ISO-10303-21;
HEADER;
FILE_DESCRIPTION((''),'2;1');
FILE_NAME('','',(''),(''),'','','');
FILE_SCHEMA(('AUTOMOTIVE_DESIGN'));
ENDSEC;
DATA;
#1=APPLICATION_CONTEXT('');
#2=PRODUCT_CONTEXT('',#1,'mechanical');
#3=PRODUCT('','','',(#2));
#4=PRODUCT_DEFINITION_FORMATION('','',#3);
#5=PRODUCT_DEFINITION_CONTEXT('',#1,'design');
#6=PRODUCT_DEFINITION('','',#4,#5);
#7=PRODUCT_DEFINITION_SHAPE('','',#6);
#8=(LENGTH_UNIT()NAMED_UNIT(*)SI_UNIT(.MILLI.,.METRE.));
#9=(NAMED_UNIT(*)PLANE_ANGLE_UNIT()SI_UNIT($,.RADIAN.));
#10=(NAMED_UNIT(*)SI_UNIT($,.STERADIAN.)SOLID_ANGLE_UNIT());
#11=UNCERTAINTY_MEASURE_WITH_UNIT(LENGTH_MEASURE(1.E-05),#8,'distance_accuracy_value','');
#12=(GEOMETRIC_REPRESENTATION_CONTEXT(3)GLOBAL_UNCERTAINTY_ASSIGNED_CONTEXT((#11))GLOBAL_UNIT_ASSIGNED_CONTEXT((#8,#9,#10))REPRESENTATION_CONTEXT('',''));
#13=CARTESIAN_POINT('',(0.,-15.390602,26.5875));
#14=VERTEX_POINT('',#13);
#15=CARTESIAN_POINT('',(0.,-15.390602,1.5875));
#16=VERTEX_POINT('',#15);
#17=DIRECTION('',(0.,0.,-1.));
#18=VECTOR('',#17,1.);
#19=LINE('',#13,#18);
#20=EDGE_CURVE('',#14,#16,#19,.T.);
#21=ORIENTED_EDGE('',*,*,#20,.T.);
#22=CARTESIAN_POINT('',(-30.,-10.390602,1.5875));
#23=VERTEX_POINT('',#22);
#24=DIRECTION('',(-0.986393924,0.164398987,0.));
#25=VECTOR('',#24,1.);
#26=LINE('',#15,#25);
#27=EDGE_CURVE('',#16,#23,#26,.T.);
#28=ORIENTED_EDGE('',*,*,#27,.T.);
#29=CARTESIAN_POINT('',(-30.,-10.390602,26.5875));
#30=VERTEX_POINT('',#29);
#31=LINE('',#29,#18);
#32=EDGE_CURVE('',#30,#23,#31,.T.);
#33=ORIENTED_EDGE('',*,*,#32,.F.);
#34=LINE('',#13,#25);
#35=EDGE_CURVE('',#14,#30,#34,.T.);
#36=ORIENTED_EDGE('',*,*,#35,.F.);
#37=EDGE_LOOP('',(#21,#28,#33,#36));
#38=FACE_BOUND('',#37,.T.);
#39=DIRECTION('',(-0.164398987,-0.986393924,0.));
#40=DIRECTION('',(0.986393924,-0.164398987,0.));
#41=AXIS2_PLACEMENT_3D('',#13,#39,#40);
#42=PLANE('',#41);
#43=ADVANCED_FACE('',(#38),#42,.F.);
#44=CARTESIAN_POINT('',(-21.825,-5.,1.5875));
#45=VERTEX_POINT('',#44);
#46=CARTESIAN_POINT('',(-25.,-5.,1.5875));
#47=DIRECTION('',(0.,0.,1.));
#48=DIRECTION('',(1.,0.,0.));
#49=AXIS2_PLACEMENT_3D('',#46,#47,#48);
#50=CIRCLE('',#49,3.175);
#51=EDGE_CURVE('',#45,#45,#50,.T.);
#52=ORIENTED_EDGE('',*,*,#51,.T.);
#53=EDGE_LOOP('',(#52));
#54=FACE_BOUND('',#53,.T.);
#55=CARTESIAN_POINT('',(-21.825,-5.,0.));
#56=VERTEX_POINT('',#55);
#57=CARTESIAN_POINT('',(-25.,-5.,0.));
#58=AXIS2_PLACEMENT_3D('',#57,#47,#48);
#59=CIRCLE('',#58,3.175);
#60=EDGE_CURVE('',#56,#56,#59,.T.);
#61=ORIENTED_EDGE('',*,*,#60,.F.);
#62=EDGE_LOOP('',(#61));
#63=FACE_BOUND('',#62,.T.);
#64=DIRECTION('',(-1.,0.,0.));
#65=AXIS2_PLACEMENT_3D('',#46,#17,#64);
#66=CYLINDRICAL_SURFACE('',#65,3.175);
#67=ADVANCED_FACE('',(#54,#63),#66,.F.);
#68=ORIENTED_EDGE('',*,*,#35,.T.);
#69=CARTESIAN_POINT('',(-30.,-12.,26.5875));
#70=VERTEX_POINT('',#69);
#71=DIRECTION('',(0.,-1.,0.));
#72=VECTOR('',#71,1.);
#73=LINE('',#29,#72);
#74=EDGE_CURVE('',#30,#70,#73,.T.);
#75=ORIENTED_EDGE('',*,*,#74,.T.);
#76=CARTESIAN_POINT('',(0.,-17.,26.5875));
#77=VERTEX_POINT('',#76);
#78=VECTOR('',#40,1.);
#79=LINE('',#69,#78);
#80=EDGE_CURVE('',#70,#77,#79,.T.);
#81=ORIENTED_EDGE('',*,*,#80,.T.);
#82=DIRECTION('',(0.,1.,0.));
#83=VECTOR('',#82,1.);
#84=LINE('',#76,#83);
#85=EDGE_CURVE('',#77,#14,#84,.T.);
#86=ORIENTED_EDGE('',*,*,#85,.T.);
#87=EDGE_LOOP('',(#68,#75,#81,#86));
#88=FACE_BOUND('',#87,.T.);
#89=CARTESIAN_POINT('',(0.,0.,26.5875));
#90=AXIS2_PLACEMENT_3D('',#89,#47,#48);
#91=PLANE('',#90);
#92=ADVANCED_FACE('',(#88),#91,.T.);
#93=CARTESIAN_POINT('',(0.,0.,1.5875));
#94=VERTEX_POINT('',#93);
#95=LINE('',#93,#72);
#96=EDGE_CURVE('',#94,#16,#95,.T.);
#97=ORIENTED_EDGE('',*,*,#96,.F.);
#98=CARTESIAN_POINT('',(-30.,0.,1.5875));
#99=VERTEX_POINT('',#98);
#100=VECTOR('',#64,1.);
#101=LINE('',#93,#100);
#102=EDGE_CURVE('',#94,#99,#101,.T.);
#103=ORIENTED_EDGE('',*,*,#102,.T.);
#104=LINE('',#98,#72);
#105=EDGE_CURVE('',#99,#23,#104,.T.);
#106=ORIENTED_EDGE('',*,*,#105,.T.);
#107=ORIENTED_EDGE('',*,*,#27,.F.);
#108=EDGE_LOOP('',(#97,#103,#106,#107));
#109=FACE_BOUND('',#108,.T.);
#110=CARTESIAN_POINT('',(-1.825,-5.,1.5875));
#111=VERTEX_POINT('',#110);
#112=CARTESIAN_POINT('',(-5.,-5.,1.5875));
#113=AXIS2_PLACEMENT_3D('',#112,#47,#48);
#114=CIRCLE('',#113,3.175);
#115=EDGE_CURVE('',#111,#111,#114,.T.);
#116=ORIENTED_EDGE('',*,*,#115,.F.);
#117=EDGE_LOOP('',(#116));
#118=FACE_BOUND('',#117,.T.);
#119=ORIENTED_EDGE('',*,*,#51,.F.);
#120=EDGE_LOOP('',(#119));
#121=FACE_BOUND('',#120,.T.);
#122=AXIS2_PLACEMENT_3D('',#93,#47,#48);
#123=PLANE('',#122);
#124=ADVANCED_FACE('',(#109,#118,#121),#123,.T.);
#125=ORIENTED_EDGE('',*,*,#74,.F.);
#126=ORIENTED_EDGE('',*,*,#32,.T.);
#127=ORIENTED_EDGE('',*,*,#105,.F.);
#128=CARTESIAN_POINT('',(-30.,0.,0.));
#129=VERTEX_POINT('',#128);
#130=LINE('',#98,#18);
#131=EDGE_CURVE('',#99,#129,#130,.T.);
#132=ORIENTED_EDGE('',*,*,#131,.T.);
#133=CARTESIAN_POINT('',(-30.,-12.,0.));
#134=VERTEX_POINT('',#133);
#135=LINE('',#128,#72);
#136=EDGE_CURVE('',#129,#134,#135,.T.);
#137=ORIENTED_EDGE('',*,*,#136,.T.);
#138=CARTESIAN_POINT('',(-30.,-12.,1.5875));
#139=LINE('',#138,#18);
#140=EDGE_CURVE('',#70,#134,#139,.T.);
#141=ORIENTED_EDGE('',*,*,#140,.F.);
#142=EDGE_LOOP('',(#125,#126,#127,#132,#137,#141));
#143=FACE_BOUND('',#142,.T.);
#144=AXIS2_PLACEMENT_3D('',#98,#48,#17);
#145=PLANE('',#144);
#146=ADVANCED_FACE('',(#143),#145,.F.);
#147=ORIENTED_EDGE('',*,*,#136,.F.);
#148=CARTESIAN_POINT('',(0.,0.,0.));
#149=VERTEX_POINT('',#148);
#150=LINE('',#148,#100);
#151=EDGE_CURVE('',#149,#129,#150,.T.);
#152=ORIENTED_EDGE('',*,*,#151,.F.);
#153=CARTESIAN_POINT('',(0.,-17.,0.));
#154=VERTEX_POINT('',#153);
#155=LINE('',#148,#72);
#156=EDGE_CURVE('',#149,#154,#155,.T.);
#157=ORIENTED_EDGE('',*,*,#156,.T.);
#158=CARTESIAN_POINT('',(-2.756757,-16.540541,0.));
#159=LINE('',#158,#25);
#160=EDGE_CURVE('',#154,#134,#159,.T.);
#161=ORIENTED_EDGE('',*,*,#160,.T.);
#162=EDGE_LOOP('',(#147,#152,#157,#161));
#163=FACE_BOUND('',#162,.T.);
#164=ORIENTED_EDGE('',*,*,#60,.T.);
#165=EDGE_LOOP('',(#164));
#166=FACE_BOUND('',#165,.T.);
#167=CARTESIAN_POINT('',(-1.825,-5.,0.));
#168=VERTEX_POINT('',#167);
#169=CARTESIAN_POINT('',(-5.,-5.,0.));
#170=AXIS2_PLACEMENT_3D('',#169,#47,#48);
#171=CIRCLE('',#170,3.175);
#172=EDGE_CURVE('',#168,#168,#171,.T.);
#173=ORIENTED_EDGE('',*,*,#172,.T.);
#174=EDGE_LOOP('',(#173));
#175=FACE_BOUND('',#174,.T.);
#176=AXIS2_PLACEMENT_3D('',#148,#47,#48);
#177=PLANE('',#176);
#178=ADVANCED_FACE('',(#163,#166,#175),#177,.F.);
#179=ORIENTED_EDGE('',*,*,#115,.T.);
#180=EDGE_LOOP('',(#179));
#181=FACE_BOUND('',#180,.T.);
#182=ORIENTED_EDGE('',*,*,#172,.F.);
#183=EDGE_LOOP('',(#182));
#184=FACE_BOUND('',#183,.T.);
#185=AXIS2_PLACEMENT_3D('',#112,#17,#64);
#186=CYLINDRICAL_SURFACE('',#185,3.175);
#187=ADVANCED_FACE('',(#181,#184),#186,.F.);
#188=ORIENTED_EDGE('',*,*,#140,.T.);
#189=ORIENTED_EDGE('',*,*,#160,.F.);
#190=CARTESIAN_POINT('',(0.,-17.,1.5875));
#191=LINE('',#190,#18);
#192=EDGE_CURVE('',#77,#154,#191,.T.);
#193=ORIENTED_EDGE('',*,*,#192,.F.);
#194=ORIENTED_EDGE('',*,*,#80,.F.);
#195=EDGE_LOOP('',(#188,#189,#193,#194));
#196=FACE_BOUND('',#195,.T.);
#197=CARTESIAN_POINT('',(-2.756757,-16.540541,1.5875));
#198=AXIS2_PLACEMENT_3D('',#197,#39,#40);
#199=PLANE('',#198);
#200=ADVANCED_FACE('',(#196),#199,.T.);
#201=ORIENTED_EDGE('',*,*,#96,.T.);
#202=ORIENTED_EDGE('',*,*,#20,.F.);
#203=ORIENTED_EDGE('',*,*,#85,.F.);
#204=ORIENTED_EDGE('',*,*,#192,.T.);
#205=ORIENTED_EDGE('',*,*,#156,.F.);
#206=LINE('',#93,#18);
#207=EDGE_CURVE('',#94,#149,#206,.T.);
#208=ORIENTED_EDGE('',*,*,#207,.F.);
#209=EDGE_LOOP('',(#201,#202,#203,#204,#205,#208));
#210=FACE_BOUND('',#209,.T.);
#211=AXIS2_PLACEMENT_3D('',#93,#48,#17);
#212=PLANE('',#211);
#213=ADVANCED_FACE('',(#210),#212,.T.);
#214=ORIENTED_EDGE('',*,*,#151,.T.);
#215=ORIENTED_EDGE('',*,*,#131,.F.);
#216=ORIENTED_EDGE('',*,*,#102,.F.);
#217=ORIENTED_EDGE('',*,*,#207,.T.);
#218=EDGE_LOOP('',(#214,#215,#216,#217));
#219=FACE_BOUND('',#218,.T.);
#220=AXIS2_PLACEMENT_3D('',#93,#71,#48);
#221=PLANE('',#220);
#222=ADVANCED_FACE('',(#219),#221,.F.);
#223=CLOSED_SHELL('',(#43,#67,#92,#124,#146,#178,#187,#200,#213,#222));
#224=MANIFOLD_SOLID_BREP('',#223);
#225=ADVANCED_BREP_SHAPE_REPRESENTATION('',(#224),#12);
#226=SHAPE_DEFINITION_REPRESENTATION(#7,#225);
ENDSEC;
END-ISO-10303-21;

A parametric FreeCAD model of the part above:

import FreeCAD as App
import Part
import Sketcher
Q = App.Units.Quantity

doc = App.newDocument("Part")
params = doc.addObject("Spreadsheet::Sheet", "Params")
for row, (alias, value) in enumerate([
    ("sketch1_diameter", "6.35 mm"),
    ("sketch1_width", "30 mm"),
    ("sketch1_height", "17 mm"),
    ("sketch1_height2", "12 mm"),
    ("pad1_length", "1.5875 mm"),
    ("pad2_length", "25 mm"),
], start=1):
    params.set(f"A{row}", alias)
    params.set(f"B{row}", "=" + value)
    params.setAlias(f"B{row}", alias)

body = doc.addObject("PartDesign::Body", "Body")

sketch1 = doc.addObject("Sketcher::SketchObject", "Sketch")
body.addObject(sketch1)
sketch1.AttachmentSupport = (doc.XY_Plane, [""])
sketch1.MapMode = "FlatFace"
sketch1.addGeometry([
    Part.LineSegment(App.Vector(0, -17, 0), App.Vector(0, 0, 0)),
    Part.LineSegment(App.Vector(0, 0, 0), App.Vector(-30, 0, 0)),
    Part.LineSegment(App.Vector(-30, 0, 0), App.Vector(-30, -12, 0)),
    Part.LineSegment(App.Vector(-30, -12, 0), App.Vector(0, -17, 0)),
    Part.Circle(App.Vector(-25, -5, 0), App.Vector(0, 0, 1), 3.2),
    Part.Circle(App.Vector(-5, -5, 0), App.Vector(0, 0, 1), 3.2),
], False)
sketch1.addConstraint([
    Sketcher.Constraint("Coincident", 0, 2, 1, 1),
    Sketcher.Constraint("Coincident", 1, 2, 2, 1),
    Sketcher.Constraint("Coincident", 2, 2, 3, 1),
    Sketcher.Constraint("Coincident", 3, 2, 0, 1),
    Sketcher.Constraint("Vertical", 0),
    Sketcher.Constraint("Horizontal", 1),
    Sketcher.Constraint("Vertical", 2),
    Sketcher.Constraint("Coincident", 0, 2, -1, 1),
    Sketcher.Constraint("Equal", 4, 5),
    Sketcher.Constraint("Horizontal", 4, 3, 5, 3),
    Sketcher.Constraint("Diameter", 4, Q("6.35 mm")),
    Sketcher.Constraint("DistanceX", 1, 2, 1, 1, Q("30 mm")),
    Sketcher.Constraint("DistanceY", 0, 1, 0, 2, Q("17 mm")),
    Sketcher.Constraint("DistanceY", 2, 2, 2, 1, Q("12 mm")),
    Sketcher.Constraint("DistanceX", 4, 3, -1, 1, Q("25 mm")),
    Sketcher.Constraint("DistanceY", 4, 3, -1, 1, Q("5 mm")),
    Sketcher.Constraint("DistanceX", 5, 3, -1, 1, Q("5 mm")),
])
sketch1.setExpression("Constraints[10]", "Params.sketch1_diameter")
sketch1.setExpression("Constraints[11]", "Params.sketch1_width")
sketch1.setExpression("Constraints[12]", "Params.sketch1_height")
sketch1.setExpression("Constraints[13]", "Params.sketch1_height2")
pad1 = doc.addObject("PartDesign::Pad", "Pad")
body.addObject(pad1)
pad1.Profile = sketch1
pad1.setExpression("Length", "Params.pad1_length")

sketch2 = doc.addObject("Sketcher::SketchObject", "Sketch001")
body.addObject(sketch2)
sketch2.AttachmentSupport = (doc.XY_Plane, [""])
sketch2.MapMode = "FlatFace"
sketch2.AttachmentOffset = App.Placement(App.Vector(0, 0, 1.5875), App.Rotation())
sketch2.addGeometry([
    Part.LineSegment(App.Vector(-30, -12, 0), App.Vector(0, -17, 0)),
    Part.LineSegment(App.Vector(0, -17, 0), App.Vector(0, -15.4, 0)),
    Part.LineSegment(App.Vector(0, -15.4, 0), App.Vector(-30, -10.4, 0)),
    Part.LineSegment(App.Vector(-30, -10.4, 0), App.Vector(-30, -12, 0)),
], False)
sketch2.addConstraint([
    Sketcher.Constraint("Coincident", 0, 2, 1, 1),
    Sketcher.Constraint("Coincident", 1, 2, 2, 1),
    Sketcher.Constraint("Coincident", 2, 2, 3, 1),
    Sketcher.Constraint("Coincident", 3, 2, 0, 1),
    Sketcher.Constraint("Vertical", 1),
    Sketcher.Constraint("Vertical", 3),
    Sketcher.Constraint("PointOnObject", 0, 2, -2),
    Sketcher.Constraint("Parallel", 0, 2),
    Sketcher.Constraint("DistanceY", 0, 2, -1, 1, Q("17 mm")),
    Sketcher.Constraint("DistanceX", 2, 2, -1, 1, Q("30 mm")),
    Sketcher.Constraint("DistanceY", 3, 2, -1, 1, Q("12 mm")),
    Sketcher.Constraint("DistanceY", 1, 1, 1, 2, Q("1.609398 mm")),
])
pad2 = doc.addObject("PartDesign::Pad", "Pad001")
body.addObject(pad2)
pad2.Profile = sketch2
pad2.setExpression("Length", "Params.pad2_length")

doc.recompute()
